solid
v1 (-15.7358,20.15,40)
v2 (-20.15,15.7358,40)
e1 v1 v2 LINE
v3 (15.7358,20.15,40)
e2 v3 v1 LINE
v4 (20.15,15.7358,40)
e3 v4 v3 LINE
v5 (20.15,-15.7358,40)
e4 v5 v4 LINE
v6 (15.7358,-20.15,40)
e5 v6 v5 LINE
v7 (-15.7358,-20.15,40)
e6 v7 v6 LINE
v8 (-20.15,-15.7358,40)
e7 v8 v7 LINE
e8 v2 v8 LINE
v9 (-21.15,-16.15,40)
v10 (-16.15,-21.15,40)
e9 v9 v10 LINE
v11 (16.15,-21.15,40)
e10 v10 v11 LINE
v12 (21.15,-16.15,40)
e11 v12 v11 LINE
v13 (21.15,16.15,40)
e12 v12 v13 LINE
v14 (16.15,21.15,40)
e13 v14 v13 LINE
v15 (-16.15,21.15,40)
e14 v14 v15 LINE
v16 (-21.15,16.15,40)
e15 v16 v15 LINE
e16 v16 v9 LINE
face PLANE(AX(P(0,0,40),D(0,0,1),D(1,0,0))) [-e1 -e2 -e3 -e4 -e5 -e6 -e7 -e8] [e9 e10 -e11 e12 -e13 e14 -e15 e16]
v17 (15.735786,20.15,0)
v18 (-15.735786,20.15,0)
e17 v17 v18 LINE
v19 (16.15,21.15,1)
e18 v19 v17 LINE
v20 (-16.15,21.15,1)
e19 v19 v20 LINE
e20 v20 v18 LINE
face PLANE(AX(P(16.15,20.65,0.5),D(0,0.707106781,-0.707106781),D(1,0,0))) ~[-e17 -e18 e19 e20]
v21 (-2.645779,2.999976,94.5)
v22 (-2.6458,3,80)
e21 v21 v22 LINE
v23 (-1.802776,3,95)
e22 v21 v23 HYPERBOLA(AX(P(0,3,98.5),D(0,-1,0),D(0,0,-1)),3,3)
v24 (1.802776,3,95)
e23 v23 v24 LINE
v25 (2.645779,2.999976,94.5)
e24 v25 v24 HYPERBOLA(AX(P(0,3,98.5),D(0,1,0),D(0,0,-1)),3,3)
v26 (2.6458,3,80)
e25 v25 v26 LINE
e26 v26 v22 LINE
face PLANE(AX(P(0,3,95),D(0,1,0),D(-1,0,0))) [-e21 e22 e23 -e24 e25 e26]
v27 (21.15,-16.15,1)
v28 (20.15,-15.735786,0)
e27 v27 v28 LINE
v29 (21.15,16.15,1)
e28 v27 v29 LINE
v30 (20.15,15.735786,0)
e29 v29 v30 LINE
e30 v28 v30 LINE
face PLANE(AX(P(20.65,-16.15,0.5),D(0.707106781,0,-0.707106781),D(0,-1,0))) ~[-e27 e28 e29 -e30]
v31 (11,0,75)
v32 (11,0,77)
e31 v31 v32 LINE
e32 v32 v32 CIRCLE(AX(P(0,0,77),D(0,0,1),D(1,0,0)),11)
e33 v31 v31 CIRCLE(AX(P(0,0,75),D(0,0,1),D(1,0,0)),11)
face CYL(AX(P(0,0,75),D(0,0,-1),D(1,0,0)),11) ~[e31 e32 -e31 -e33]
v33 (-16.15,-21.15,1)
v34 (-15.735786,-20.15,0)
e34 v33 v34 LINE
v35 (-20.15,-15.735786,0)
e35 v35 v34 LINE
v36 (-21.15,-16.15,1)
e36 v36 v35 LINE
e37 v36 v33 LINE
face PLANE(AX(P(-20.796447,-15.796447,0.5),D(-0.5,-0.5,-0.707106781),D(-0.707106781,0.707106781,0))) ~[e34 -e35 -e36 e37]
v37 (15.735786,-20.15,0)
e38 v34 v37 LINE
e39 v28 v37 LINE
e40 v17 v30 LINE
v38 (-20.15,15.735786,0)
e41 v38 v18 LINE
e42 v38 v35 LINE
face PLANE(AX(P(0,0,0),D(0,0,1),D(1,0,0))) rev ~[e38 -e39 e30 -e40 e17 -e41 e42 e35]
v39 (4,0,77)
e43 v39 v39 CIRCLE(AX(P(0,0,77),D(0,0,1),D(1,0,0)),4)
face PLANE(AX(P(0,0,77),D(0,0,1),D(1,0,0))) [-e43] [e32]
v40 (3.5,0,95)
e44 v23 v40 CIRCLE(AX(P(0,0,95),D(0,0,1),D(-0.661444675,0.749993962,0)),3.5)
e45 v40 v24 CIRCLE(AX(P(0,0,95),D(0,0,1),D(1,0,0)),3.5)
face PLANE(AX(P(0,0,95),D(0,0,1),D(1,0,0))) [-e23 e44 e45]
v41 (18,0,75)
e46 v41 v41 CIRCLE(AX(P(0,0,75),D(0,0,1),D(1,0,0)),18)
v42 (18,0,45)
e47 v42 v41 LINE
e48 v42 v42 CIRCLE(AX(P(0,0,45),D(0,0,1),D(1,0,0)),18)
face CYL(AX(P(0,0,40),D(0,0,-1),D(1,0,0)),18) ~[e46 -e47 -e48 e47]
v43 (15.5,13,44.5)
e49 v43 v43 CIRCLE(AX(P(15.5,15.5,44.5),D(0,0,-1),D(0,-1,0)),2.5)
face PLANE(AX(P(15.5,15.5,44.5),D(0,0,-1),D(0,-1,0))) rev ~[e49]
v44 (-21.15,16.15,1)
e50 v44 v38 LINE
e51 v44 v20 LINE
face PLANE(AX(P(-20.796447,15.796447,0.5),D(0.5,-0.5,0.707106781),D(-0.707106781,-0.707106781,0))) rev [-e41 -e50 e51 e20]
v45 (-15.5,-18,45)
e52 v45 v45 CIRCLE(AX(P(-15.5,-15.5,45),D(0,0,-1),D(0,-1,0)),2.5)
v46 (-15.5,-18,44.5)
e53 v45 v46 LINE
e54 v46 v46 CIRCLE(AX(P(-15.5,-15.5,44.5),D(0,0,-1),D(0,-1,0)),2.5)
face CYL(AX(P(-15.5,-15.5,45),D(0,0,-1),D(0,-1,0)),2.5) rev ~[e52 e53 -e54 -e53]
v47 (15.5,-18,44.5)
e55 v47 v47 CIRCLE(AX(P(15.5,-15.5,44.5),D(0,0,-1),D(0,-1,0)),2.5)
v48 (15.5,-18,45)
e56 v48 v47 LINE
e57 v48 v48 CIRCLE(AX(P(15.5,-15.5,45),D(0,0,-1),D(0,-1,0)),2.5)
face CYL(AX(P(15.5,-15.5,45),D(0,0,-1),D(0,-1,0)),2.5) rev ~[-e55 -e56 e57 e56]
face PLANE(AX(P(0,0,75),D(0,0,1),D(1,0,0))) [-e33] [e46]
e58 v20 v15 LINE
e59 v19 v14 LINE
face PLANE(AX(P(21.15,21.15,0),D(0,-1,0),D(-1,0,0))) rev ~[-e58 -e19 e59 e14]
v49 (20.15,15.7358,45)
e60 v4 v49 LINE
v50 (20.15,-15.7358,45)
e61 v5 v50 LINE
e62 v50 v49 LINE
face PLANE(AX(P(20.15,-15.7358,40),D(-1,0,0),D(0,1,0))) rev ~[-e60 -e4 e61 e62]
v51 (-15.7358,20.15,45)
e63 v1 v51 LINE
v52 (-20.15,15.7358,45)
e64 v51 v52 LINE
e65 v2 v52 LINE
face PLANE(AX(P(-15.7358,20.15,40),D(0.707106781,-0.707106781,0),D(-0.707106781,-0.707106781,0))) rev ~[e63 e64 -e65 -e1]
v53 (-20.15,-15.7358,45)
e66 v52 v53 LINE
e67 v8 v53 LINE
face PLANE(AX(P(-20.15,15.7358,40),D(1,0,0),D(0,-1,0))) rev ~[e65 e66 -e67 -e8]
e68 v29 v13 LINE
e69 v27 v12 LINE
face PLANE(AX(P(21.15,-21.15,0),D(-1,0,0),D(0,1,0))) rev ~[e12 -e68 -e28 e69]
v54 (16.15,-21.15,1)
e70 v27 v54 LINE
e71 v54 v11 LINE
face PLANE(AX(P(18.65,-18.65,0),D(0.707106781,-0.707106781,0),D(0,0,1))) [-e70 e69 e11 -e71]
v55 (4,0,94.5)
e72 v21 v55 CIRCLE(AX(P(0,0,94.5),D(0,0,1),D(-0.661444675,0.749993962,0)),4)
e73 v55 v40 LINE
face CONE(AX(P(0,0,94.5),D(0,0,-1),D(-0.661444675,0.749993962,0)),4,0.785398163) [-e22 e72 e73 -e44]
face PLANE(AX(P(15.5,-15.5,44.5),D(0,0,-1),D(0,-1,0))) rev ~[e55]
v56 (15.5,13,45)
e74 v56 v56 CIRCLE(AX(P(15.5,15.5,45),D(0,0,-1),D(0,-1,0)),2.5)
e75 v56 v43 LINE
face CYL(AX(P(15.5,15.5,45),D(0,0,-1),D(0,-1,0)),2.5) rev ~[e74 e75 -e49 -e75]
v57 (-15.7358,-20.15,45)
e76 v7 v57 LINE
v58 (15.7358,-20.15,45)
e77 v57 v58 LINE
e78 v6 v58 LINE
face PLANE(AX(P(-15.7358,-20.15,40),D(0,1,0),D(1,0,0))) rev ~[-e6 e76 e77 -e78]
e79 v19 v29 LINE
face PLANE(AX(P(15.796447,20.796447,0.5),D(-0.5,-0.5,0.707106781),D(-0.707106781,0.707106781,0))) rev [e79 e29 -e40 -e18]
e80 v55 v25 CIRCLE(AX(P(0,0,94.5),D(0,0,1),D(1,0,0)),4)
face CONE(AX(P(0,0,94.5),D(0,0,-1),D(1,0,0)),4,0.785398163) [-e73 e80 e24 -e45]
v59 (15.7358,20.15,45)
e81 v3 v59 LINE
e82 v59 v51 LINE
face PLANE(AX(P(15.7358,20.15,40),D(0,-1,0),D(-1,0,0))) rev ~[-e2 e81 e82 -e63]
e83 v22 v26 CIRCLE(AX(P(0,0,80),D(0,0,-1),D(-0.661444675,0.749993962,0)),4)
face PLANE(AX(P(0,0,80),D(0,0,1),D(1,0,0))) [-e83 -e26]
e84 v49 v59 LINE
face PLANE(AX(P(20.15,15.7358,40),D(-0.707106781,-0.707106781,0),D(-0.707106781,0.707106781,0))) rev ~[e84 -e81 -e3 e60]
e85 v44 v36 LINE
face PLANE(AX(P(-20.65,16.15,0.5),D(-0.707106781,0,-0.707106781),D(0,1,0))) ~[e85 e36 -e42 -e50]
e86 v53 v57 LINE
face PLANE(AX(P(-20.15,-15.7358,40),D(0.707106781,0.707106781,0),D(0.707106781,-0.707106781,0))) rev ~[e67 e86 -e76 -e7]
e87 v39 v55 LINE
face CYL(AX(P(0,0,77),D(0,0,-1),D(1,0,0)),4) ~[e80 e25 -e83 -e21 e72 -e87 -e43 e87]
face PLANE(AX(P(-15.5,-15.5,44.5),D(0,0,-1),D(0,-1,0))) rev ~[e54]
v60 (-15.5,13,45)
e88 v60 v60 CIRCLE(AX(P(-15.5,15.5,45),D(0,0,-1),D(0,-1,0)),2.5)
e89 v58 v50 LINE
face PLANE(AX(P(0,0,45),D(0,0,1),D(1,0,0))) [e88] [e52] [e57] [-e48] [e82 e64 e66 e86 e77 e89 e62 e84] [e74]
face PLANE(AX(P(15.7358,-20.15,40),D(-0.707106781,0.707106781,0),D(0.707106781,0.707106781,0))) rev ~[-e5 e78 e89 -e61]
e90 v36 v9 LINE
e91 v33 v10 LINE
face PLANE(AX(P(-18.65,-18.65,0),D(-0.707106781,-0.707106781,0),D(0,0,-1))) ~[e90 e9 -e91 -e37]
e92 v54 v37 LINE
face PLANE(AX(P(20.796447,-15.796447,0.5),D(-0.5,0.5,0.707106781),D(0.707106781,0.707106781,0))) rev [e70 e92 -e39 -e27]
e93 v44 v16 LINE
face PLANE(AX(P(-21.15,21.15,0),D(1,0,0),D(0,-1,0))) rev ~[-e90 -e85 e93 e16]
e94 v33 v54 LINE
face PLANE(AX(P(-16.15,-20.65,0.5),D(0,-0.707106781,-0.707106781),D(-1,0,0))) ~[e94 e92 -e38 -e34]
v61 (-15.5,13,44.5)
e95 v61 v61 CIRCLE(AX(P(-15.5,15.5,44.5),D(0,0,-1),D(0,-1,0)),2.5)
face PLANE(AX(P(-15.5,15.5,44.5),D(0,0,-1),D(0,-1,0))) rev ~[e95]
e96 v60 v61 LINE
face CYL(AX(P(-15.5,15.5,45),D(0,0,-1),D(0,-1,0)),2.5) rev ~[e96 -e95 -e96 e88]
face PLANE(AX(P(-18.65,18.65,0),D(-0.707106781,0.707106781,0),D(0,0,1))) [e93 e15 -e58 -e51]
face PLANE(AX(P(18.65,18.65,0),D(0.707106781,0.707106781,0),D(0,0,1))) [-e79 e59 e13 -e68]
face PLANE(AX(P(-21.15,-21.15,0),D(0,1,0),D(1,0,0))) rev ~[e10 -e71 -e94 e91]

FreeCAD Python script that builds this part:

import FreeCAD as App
import Part
import Sketcher


def edges_at(feature, points):
    """Names of the edges that pass closest to the given points."""
    edges = feature.Shape.Edges
    near = lambda p: min(range(len(edges)), key=lambda i: edges[i].distToShape(Part.Vertex(*p))[0])
    return sorted({f"Edge{near(p) + 1}" for p in points})

doc = App.newDocument("Part")
body = doc.addObject("PartDesign::Body", "Body")

# Sketch on XY plane
sketch1 = body.newObject("Sketcher::SketchObject", "Sketch")
sketch1.AttachmentSupport = (doc.getObject("XY_Plane"), [""])
sketch1.MapMode = "FlatFace"
sketch1.addGeometry([
    Part.LineSegment(App.Vector(-21, 21, 0), App.Vector(-21, -21, 0)),
    Part.LineSegment(App.Vector(-21, -21, 0), App.Vector(21, -21, 0)),
    Part.LineSegment(App.Vector(21, -21, 0), App.Vector(21, 21, 0)),
    Part.LineSegment(App.Vector(21, 21, 0), App.Vector(-21, 21, 0)),
], False)
sketch1.addConstraint([
    Sketcher.Constraint("Coincident", 0, 2, 1, 1),
    Sketcher.Constraint("Coincident", 1, 2, 2, 1),
    Sketcher.Constraint("Coincident", 2, 2, 3, 1),
    Sketcher.Constraint("Coincident", 3, 2, 0, 1),
    Sketcher.Constraint("Vertical", 0),
    Sketcher.Constraint("Horizontal", 1),
    Sketcher.Constraint("Vertical", 2),
    Sketcher.Constraint("Horizontal", 3),
    Sketcher.Constraint("Symmetric", 0, 2, 2, 2, -1, 1),
    Sketcher.Constraint("Equal", 3, 0),
    Sketcher.Constraint("DistanceX", 1, 1, 1, 2, 42.3),
])
pad1 = body.newObject("PartDesign::Pad", "Pad")
pad1.Profile = sketch1
pad1.Length = 40
doc.recompute()

chamfer = body.newObject("PartDesign::Chamfer", "Chamfer")
chamfer.Base = (pad1, edges_at(pad1, [
    (21.15, -21.15, 20),
    (-21.15, -21.15, 20),
    (21.15, 21.15, 20),
    (-21.15, 21.15, 20),
]))
chamfer.Size = 5

# Sketch on XY plane
sketch2 = body.newObject("Sketcher::SketchObject", "Sketch001")
sketch2.AttachmentSupport = (doc.getObject("XY_Plane"), [""])
sketch2.MapMode = "FlatFace"
sketch2.AttachmentOffset = App.Placement(App.Vector(0, 0, 40), App.Rotation())
sketch2.addGeometry(Part.Circle(App.Vector(0, 0, 0), App.Vector(0, 0, 1), 18), False)
sketch2.addConstraint([
    Sketcher.Constraint("Coincident", 0, 3, -1, 1),
    Sketcher.Constraint("Diameter", 0, 36.0),
])
pad2 = body.newObject("PartDesign::Pad", "Pad001")
pad2.Profile = sketch2
pad2.Length = 35

# Sketch on XY plane
sketch3 = body.newObject("Sketcher::SketchObject", "Sketch002")
sketch3.AttachmentSupport = (doc.getObject("XY_Plane"), [""])
sketch3.MapMode = "FlatFace"
sketch3.AttachmentOffset = App.Placement(App.Vector(0, 0, 40), App.Rotation())
sketch3.addGeometry([
    Part.LineSegment(App.Vector(16, 20, 0), App.Vector(-16, 20, 0)),  # 0
    Part.LineSegment(App.Vector(-16, 20, 0), App.Vector(-20, 16, 0)),  # 1
    Part.LineSegment(App.Vector(-20, 16, 0), App.Vector(-20, -16, 0)),  # 2
    Part.LineSegment(App.Vector(-20, -16, 0), App.Vector(-16, -20, 0)),  # 3
    Part.LineSegment(App.Vector(-16, -20, 0), App.Vector(16, -20, 0)),  # 4
    Part.LineSegment(App.Vector(16, -20, 0), App.Vector(20, -16, 0)),  # 5
    Part.LineSegment(App.Vector(20, -16, 0), App.Vector(20, 16, 0)),  # 6
    Part.LineSegment(App.Vector(20, 16, 0), App.Vector(16, 20, 0)),  # 7
    Part.Circle(App.Vector(0, 0, 0), App.Vector(0, 0, 1), 18),  # 8
], False)
sketch3.addConstraint([
    Sketcher.Constraint("Coincident", 0, 2, 1, 1),
    Sketcher.Constraint("Coincident", 1, 2, 2, 1),
    Sketcher.Constraint("Coincident", 2, 2, 3, 1),
    Sketcher.Constraint("Coincident", 3, 2, 4, 1),
    Sketcher.Constraint("Coincident", 4, 2, 5, 1),
    Sketcher.Constraint("Coincident", 5, 2, 6, 1),
    Sketcher.Constraint("Coincident", 6, 2, 7, 1),
    Sketcher.Constraint("Coincident", 7, 2, 0, 1),
    Sketcher.Constraint("Horizontal", 0),
    Sketcher.Constraint("Vertical", 2),
    Sketcher.Constraint("Horizontal", 4),
    Sketcher.Constraint("Vertical", 6),
    Sketcher.Constraint("Coincident", 8, 3, -1, 1),
    Sketcher.Constraint("Symmetric", 0, 2, 4, 2, -1, 1),
    Sketcher.Constraint("Symmetric", 1, 2, 5, 2, -1, 1),
    Sketcher.Constraint("Perpendicular", 1, 3),
    Sketcher.Constraint("Perpendicular", 5, 7),
    Sketcher.Constraint("Horizontal", 2, 2, 5, 2),
    Sketcher.Constraint("Horizontal", 1, 2, 6, 2),
    Sketcher.Constraint("Vertical", 0, 2, 3, 2),
    Sketcher.Constraint("Equal", 4, 2),
    Sketcher.Constraint("Diameter", 8, 36.0),
    Sketcher.Constraint("DistanceY", 3, 2, 0, 2, 40.3),
    Sketcher.Constraint("DistanceX", 0, 2, 0, 1, 31.4716),
])
pad3 = body.newObject("PartDesign::Pad", "Pad002")
pad3.Profile = sketch3
pad3.Length = 5

# Sketch on XY plane
sketch4 = body.newObject("Sketcher::SketchObject", "Sketch003")
sketch4.AttachmentSupport = (doc.getObject("XY_Plane"), [""])
sketch4.MapMode = "FlatFace"
sketch4.AttachmentOffset = App.Placement(App.Vector(0, 0, 45), App.Rotation())
sketch4.addGeometry([
    Part.Circle(App.Vector(-15.5, 15.5, 0), App.Vector(0, 0, 1), 2.5),
    Part.Circle(App.Vector(15.5, 15.5, 0), App.Vector(0, 0, 1), 2.5),
    Part.Circle(App.Vector(-15.5, -15.5, 0), App.Vector(0, 0, 1), 2.5),
    Part.Circle(App.Vector(15.5, -15.5, 0), App.Vector(0, 0, 1), 2.5),
], False)
sketch4.addConstraint([
    Sketcher.Constraint("Equal", 0, 1),
    Sketcher.Constraint("Equal", 1, 2),
    Sketcher.Constraint("Equal", 2, 3),
    Sketcher.Constraint("Symmetric", 1, 3, 2, 3, -1, 1),
    Sketcher.Constraint("Symmetric", 0, 3, 3, 3, -1, 1),
    Sketcher.Constraint("Symmetric", 0, 3, 1, 3, -2),
    Sketcher.Constraint("Diameter", 0, 5.0),
    Sketcher.Constraint("DistanceX", 0, 3, 1, 3, 31.0),
    Sketcher.Constraint("DistanceY", 2, 3, 0, 3, 31.0),
])
doc.recompute()
hole = body.newObject("PartDesign::Hole", "Hole")
hole.Profile = sketch4
hole.ThreadType = "None"
hole.Diameter = 5
hole.DepthType = "Dimension"
hole.Depth = 0.5
hole.DrillPoint = "Flat"

# Sketch on XY plane
sketch5 = body.newObject("Sketcher::SketchObject", "Sketch004")
sketch5.AttachmentSupport = (doc.getObject("XY_Plane"), [""])
sketch5.MapMode = "FlatFace"
sketch5.AttachmentOffset = App.Placement(App.Vector(0, 0, 75), App.Rotation())
sketch5.addGeometry(Part.Circle(App.Vector(0, 0, 0), App.Vector(0, 0, 1), 11), False)
sketch5.addConstraint([
    Sketcher.Constraint("Coincident", 0, 3, -1, 1),
    Sketcher.Constraint("Diameter", 0, 22.0),
])
pad4 = body.newObject("PartDesign::Pad", "Pad003")
pad4.Profile = sketch5
pad4.Length = 2

# Sketch on XY plane
sketch6 = body.newObject("Sketcher::SketchObject", "Sketch005")
sketch6.AttachmentSupport = (doc.getObject("XY_Plane"), [""])
sketch6.MapMode = "FlatFace"
sketch6.AttachmentOffset = App.Placement(App.Vector(0, 0, 77), App.Rotation())
sketch6.addGeometry(Part.Circle(App.Vector(0, 0, 0), App.Vector(0, 0, 1), 4), False)
sketch6.addConstraint([
    Sketcher.Constraint("Coincident", 0, 3, -1, 1),
    Sketcher.Constraint("Diameter", 0, 8.0),
])
pad5 = body.newObject("PartDesign::Pad", "Pad004")
pad5.Profile = sketch6
pad5.Length = 18

# Sketch on XY plane
sketch7 = body.newObject("Sketcher::SketchObject", "Sketch006")
sketch7.AttachmentSupport = (doc.getObject("XY_Plane"), [""])
sketch7.MapMode = "FlatFace"
sketch7.AttachmentOffset = App.Placement(App.Vector(0, 0, 95), App.Rotation())
sketch7.addGeometry([
    Part.LineSegment(App.Vector(-2.6, 4, 0), App.Vector(-2.6, 3, 0)),
    Part.LineSegment(App.Vector(-2.6, 3, 0), App.Vector(2.6, 3, 0)),
    Part.LineSegment(App.Vector(2.6, 3, 0), App.Vector(2.6, 4, 0)),
    Part.LineSegment(App.Vector(2.6, 4, 0), App.Vector(-2.6, 4, 0)),
], False)
sketch7.addConstraint([
    Sketcher.Constraint("Coincident", 0, 2, 1, 1),
    Sketcher.Constraint("Coincident", 1, 2, 2, 1),
    Sketcher.Constraint("Coincident", 2, 2, 3, 1),
    Sketcher.Constraint("Coincident", 3, 2, 0, 1),
    Sketcher.Constraint("Vertical", 0),
    Sketcher.Constraint("Horizontal", 1),
    Sketcher.Constraint("Vertical", 2),
    Sketcher.Constraint("Horizontal", 3),
    Sketcher.Constraint("DistanceY", 0, 2, 0, 1, 1.0),
    Sketcher.Constraint("DistanceY", -1, 1, 0, 2, 3.0),
    Sketcher.Constraint("DistanceX", 1, 1, 1, 2, 5.2916),
    Sketcher.Constraint("DistanceX", 0, 2, -1, 1, 2.6458),
])
pocket1 = body.newObject("PartDesign::Pocket", "Pocket")
pocket1.Profile = sketch7
pocket1.Length = 15
doc.recompute()

chamfer2 = body.newObject("PartDesign::Chamfer", "Chamfer001")
chamfer2.Base = (pocket1, edges_at(pocket1, [(3.646, 1.646, 95), (-1.646, -3.646, 95)]))
chamfer2.Size = 0.5
doc.recompute()

chamfer3 = body.newObject("PartDesign::Chamfer", "Chamfer002")
chamfer3.Base = (chamfer2, edges_at(chamfer2, [
    (0, 21.15, 0),
    (18.65, 18.65, 0),
    (21.15, 0, 0),
    (-21.15, 0, 0),
    (-18.65, 18.65, 0),
    (18.65, -18.65, 0),
    (0, -21.15, 0),
    (-18.65, -18.65, 0),
]))
chamfer3.Size = 1

doc.recompute()
